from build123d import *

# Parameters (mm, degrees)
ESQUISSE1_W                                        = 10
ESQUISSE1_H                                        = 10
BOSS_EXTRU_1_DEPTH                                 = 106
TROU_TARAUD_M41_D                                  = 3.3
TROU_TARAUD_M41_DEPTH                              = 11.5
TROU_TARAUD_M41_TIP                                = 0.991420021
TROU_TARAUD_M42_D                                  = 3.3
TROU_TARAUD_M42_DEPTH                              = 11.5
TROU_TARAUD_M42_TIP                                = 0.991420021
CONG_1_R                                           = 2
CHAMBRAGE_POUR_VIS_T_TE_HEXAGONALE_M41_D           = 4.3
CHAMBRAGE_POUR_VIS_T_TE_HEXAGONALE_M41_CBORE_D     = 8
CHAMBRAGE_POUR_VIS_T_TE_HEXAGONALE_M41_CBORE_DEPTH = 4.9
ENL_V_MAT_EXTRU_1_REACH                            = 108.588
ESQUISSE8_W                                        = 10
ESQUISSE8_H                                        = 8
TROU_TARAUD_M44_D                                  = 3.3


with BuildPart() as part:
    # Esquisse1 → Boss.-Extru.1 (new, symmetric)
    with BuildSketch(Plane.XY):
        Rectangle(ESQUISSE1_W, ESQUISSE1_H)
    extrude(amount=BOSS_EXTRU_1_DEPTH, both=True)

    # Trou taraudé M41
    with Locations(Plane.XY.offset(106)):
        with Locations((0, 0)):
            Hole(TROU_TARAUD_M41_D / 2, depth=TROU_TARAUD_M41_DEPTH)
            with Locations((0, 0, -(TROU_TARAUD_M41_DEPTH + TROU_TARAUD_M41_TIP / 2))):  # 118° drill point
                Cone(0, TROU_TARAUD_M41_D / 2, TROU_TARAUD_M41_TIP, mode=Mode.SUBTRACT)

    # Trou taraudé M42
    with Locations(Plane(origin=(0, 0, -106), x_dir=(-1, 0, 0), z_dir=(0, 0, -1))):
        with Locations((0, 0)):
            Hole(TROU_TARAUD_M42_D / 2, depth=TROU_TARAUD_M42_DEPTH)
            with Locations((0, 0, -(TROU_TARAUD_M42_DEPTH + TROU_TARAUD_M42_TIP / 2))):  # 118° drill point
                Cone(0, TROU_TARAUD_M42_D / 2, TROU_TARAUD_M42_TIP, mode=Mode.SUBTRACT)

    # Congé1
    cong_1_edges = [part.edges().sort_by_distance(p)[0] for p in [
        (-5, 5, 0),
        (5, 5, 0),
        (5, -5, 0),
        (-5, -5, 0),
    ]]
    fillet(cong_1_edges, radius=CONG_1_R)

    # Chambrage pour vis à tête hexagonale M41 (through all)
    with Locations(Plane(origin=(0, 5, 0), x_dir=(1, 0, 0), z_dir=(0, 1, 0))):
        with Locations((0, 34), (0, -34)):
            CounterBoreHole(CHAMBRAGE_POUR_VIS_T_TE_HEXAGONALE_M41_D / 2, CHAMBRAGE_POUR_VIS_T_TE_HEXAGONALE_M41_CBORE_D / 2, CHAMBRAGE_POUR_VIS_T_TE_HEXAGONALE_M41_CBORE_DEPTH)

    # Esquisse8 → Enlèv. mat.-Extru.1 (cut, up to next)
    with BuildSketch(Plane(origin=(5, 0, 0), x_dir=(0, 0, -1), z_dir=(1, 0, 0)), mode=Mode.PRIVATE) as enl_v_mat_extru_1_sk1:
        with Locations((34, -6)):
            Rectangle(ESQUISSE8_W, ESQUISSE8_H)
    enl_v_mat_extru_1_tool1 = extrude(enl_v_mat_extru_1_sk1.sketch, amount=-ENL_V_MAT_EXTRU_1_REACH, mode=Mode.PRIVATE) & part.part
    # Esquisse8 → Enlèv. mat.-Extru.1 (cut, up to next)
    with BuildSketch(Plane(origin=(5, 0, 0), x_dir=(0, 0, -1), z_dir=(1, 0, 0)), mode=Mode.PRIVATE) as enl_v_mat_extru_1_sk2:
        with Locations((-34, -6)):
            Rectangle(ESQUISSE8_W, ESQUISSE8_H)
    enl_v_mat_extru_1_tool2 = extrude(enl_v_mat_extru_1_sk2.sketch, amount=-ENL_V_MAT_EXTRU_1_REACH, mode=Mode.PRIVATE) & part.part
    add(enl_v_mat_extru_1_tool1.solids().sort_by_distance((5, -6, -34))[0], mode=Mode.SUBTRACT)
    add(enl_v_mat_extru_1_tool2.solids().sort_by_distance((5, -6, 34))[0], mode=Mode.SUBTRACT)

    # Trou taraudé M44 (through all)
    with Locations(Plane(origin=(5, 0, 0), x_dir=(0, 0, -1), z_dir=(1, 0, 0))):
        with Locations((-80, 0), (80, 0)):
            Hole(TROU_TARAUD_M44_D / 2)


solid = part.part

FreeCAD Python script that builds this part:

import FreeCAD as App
import Part
import Sketcher
from FreeCAD import Vector


def edges_at(feature, points):
    """Names of the edges that pass closest to the given points."""
    edges = feature.Shape.Edges
    near = lambda p: min(range(len(edges)), key=lambda i: edges[i].distToShape(Part.Vertex(*p))[0])
    return sorted({f"Edge{near(p) + 1}" for p in points})


def add_polygon(sketch, points):
    """Adds a closed chain of lines whose ends are joined by coincident constraints."""
    first, n = sketch.GeometryCount, len(points)
    for a, b in zip(points, points[1:] + points[:1]):
        sketch.addGeometry(Part.LineSegment(App.Vector(*a, 0), App.Vector(*b, 0)), False)
    for i in range(n):
        sketch.addConstraint(Sketcher.Constraint("Coincident", first + i, 2, first + (i + 1) % n, 1))

doc = App.newDocument("Part")
body = doc.addObject("PartDesign::Body", "Body")

# Sketch on XY plane
sketch1 = doc.addObject("Sketcher::SketchObject", "Sketch")
body.addObject(sketch1)
sketch1.AttachmentSupport = (doc.XY_Plane, [""])
sketch1.MapMode = "FlatFace"
add_polygon(sketch1, [(-5, 5), (-5, -5), (5, -5), (5, 5)])  # lines 0-3
sketch1.addConstraint([
    Sketcher.Constraint("Vertical", 0),
    Sketcher.Constraint("Horizontal", 1),
    Sketcher.Constraint("Vertical", 2),
    Sketcher.Constraint("Horizontal", 3),
    Sketcher.Constraint("Symmetric", 0, 2, 2, 2, -1, 1),
    Sketcher.Constraint("Equal", 3, 0),
    Sketcher.Constraint("DistanceX", 1, 1, 1, 2, 10.0),
])
pad1 = doc.addObject("PartDesign::Pad", "Pad")
body.addObject(pad1)
pad1.Profile = sketch1
pad1.Length = 212
pad1.Midplane = True

# Sketch on XY plane
sketch2 = doc.addObject("Sketcher::SketchObject", "Sketch001")
body.addObject(sketch2)
sketch2.AttachmentSupport = (doc.XY_Plane, [""])
sketch2.MapMode = "FlatFace"
sketch2.AttachmentOffset = App.Placement(Vector(0, 0, 106), App.Rotation())
sketch2.addGeometry(Part.Circle(Vector(0, 0, 0), Vector(0, 0, 1), 1.6), False)
sketch2.addConstraint([
    Sketcher.Constraint("Coincident", 0, 3, -1, 1),
    Sketcher.Constraint("Diameter", 0, 3.3),
])
doc.recompute()
hole = doc.addObject("PartDesign::Hole", "Hole")
body.addObject(hole)
hole.Profile = sketch2
hole.ThreadType = "None"
hole.Diameter = 3.3
hole.DepthType = "Dimension"
hole.Depth = 11.5
hole.DrillPoint = "Angled"
hole.DrillPointAngle = 118

# Sketch on XY plane
sketch3 = doc.addObject("Sketcher::SketchObject", "Sketch002")
body.addObject(sketch3)
sketch3.AttachmentSupport = (doc.XY_Plane, [""])
sketch3.MapMode = "FlatFace"
sketch3.AttachmentOffset = App.Placement(Vector(0, 0, -106), App.Rotation())
sketch3.addGeometry(Part.Circle(Vector(0, 0, 0), Vector(0, 0, 1), 1.6), False)
sketch3.addConstraint([
    Sketcher.Constraint("Coincident", 0, 3, -1, 1),
    Sketcher.Constraint("Diameter", 0, 3.3),
])
doc.recompute()
hole2 = doc.addObject("PartDesign::Hole", "Hole001")
body.addObject(hole2)
hole2.Profile = sketch3
hole2.ThreadType = "None"
hole2.Diameter = 3.3
hole2.DepthType = "Dimension"
hole2.Depth = 11.5
hole2.DrillPoint = "Angled"
hole2.DrillPointAngle = 118
hole2.Reversed = True
doc.recompute()

fillet = doc.addObject("PartDesign::Fillet", "Fillet")
body.addObject(fillet)
fillet.Base = (hole2, edges_at(hole2, [
    (-5, 5, 0),
    (5, 5, 0),
    (5, -5, 0),
    (-5, -5, 0),
]))
fillet.Radius = 2

# Sketch on XZ plane
sketch4 = doc.addObject("Sketcher::SketchObject", "Sketch003")
body.addObject(sketch4)
sketch4.AttachmentSupport = (doc.XZ_Plane, [""])
sketch4.MapMode = "FlatFace"
sketch4.AttachmentOffset = App.Placement(Vector(0, 0, -5), App.Rotation())
sketch4.addGeometry([
    Part.Circle(Vector(0, -34, 0), Vector(0, 0, 1), 2.1),
    Part.Circle(Vector(0, 34, 0), Vector(0, 0, 1), 2.1),
], False)
sketch4.addConstraint([
    Sketcher.Constraint("Equal", 0, 1),
    Sketcher.Constraint("Symmetric", 0, 3, 1, 3, -1, 1),
    Sketcher.Constraint("PointOnObject", 0, 3, -2),
    Sketcher.Constraint("Diameter", 0, 4.3),
    Sketcher.Constraint("DistanceY", 0, 3, -1, 1, 34.0),
])
doc.recompute()
hole3 = doc.addObject("PartDesign::Hole", "Hole002")
body.addObject(hole3)
hole3.Profile = sketch4
hole3.ThreadType = "None"
hole3.Diameter = 4.3
hole3.DepthType = "ThroughAll"
hole3.HoleCutType = "Counterbore"
hole3.HoleCutDiameter = 8
hole3.HoleCutDepth = 4.9
hole3.Reversed = True

# Sketch on YZ plane
sketch5 = doc.addObject("Sketcher::SketchObject", "Sketch004")
body.addObject(sketch5)
sketch5.AttachmentSupport = (doc.YZ_Plane, [""])
sketch5.MapMode = "FlatFace"
sketch5.AttachmentOffset = App.Placement(Vector(0, 0, 5), App.Rotation())
add_polygon(sketch5, [(-2, -29), (-10, -29), (-10, -39), (-2, -39)])  # lines 0-3
sketch5.addConstraint([
    Sketcher.Constraint("Horizontal", 0),
    Sketcher.Constraint("Vertical", 1),
    Sketcher.Constraint("Horizontal", 2),
    Sketcher.Constraint("Vertical", 3),
    Sketcher.Constraint("DistanceX", 0, 2, 0, 1, 8.0),
    Sketcher.Constraint("DistanceY", 1, 2, 1, 1, 10.0),
    Sketcher.Constraint("DistanceX", 0, 2, -1, 1, 10.0),
    Sketcher.Constraint("DistanceY", 0, 2, -1, 1, 29.0),
])
pocket1 = doc.addObject("PartDesign::Pocket", "Pocket")
body.addObject(pocket1)
pocket1.Profile = sketch5
pocket1.Length = 10

# Sketch on YZ plane
sketch6 = doc.addObject("Sketcher::SketchObject", "Sketch005")
body.addObject(sketch6)
sketch6.AttachmentSupport = (doc.YZ_Plane, [""])
sketch6.MapMode = "FlatFace"
sketch6.AttachmentOffset = App.Placement(Vector(0, 0, 5), App.Rotation())
add_polygon(sketch6, [(-2, 39), (-10, 39), (-10, 29), (-2, 29)])  # lines 0-3
sketch6.addConstraint([
    Sketcher.Constraint("Horizontal", 0),
    Sketcher.Constraint("Vertical", 1),
    Sketcher.Constraint("Horizontal", 2),
    Sketcher.Constraint("Vertical", 3),
    Sketcher.Constraint("DistanceX", 0, 2, 0, 1, 8.0),
    Sketcher.Constraint("DistanceY", 1, 2, 1, 1, 10.0),
    Sketcher.Constraint("DistanceX", 0, 2, -1, 1, 10.0),
    Sketcher.Constraint("DistanceY", -1, 1, 0, 2, 39.0),
])
pocket2 = doc.addObject("PartDesign::Pocket", "Pocket001")
body.addObject(pocket2)
pocket2.Profile = sketch6
pocket2.Length = 10

# Sketch on YZ plane
sketch7 = doc.addObject("Sketcher::SketchObject", "Sketch006")
body.addObject(sketch7)
sketch7.AttachmentSupport = (doc.YZ_Plane, [""])
sketch7.MapMode = "FlatFace"
sketch7.AttachmentOffset = App.Placement(Vector(0, 0, 5), App.Rotation())
sketch7.addGeometry([
    Part.Circle(Vector(0, 80, 0), Vector(0, 0, 1), 1.6),
    Part.Circle(Vector(0, -80, 0), Vector(0, 0, 1), 1.6),
], False)
sketch7.addConstraint([
    Sketcher.Constraint("Equal", 0, 1),
    Sketcher.Constraint("Symmetric", 0, 3, 1, 3, -1, 1),
    Sketcher.Constraint("PointOnObject", 0, 3, -2),
    Sketcher.Constraint("Diameter", 0, 3.3),
    Sketcher.Constraint("DistanceY", -1, 1, 0, 3, 80.0),
])
doc.recompute()
hole4 = doc.addObject("PartDesign::Hole", "Hole003")
body.addObject(hole4)
hole4.Profile = sketch7
hole4.ThreadType = "None"
hole4.Diameter = 3.3
hole4.DepthType = "ThroughAll"

doc.recompute()
